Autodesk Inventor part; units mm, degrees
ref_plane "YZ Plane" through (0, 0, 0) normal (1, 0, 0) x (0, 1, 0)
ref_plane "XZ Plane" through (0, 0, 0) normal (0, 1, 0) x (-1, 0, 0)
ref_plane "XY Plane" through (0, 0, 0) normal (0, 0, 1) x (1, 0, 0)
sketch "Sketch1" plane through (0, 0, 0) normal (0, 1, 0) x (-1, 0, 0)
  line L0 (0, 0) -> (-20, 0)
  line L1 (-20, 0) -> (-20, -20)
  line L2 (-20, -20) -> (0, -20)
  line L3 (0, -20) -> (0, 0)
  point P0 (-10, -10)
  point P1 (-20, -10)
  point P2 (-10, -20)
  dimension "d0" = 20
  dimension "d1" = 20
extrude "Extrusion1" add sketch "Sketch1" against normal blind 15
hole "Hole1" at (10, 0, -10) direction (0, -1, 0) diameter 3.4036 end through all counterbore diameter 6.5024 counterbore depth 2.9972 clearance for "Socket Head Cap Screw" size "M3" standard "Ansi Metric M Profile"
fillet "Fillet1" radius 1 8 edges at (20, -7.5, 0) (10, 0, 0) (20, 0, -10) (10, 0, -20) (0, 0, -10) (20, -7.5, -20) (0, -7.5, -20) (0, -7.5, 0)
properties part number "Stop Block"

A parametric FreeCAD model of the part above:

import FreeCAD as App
import Part
import Sketcher

V = App.Vector
Q = App.Units.Quantity


def edges_at(feature, points):
    """Names of the edges that pass closest to the given points."""
    edges = feature.Shape.Edges
    near = lambda p: min(range(len(edges)), key=lambda i: edges[i].distToShape(Part.Vertex(*p))[0])
    return sorted({f"Edge{near(p) + 1}" for p in points})


def add_polygon(sketch, points):
    """Adds a closed chain of lines whose ends are joined by coincident constraints."""
    first, n = sketch.GeometryCount, len(points)
    for a, b in zip(points, points[1:] + points[:1]):
        sketch.addGeometry(Part.LineSegment(App.Vector(*a, 0), App.Vector(*b, 0)), False)
    for i in range(n):
        sketch.addConstraint(Sketcher.Constraint("Coincident", first + i, 2, first + (i + 1) % n, 1))

doc = App.newDocument("Part")
body = doc.addObject("PartDesign::Body", "Body")

sketch1 = body.newObject("Sketcher::SketchObject", "Sketch")
sketch1.AttachmentSupport = (doc.getObject("XZ_Plane"), [""])
sketch1.MapMode = "FlatFace"
add_polygon(sketch1, [(0, -20), (0, 0), (20, 0), (20, -20)])
sketch1.addConstraint(Sketcher.Constraint("Vertical", 0))
sketch1.addConstraint(Sketcher.Constraint("Horizontal", 1))
sketch1.addConstraint(Sketcher.Constraint("Vertical", 2))
sketch1.addConstraint(Sketcher.Constraint("Horizontal", 3))
sketch1.addConstraint(Sketcher.Constraint("Coincident", 0, 2, -1, 1))
sketch1.addConstraint(Sketcher.Constraint("Equal", 3, 0))
sketch1.addConstraint(Sketcher.Constraint("DistanceX", 1, 1, 1, 2, Q("20 mm")))
pad1 = body.newObject("PartDesign::Pad", "Pad")
pad1.Profile = sketch1
pad1.Length = 15

sketch2 = body.newObject("Sketcher::SketchObject", "Sketch001")
sketch2.AttachmentSupport = (doc.getObject("XZ_Plane"), [""])
sketch2.MapMode = "FlatFace"
sketch2.addGeometry(Part.Circle(V(10, -10, 0), V(0, 0, 1), 1.7018), False)
sketch2.addConstraint(Sketcher.Constraint("DistanceX", -1, 1, 0, 3, Q("10 mm")))
sketch2.addConstraint(Sketcher.Constraint("DistanceY", 0, 3, -1, 1, Q("10 mm")))
sketch2.addConstraint(Sketcher.Constraint("Diameter", 0, Q("3.4036 mm")))
doc.recompute()
hole = body.newObject("PartDesign::Hole", "Hole")
hole.Profile = sketch2
hole.ThreadType = "None"
hole.Diameter = 3.4036
hole.DepthType = "ThroughAll"
hole.HoleCutType = "Counterbore"
hole.HoleCutDiameter = 6.5024
hole.HoleCutDepth = 2.9972
hole.Reversed = True
doc.recompute()

fillet = body.newObject("PartDesign::Fillet", "Fillet")
fillet.Base = (hole, edges_at(hole, [
    (20, -7.5, 0),
    (10, 0, 0),
    (20, 0, -10),
    (10, 0, -20),
    (0, 0, -10),
    (20, -7.5, -20),
    (0, -7.5, -20),
    (0, -7.5, 0),
]))
fillet.Radius = 1

doc.recompute()
